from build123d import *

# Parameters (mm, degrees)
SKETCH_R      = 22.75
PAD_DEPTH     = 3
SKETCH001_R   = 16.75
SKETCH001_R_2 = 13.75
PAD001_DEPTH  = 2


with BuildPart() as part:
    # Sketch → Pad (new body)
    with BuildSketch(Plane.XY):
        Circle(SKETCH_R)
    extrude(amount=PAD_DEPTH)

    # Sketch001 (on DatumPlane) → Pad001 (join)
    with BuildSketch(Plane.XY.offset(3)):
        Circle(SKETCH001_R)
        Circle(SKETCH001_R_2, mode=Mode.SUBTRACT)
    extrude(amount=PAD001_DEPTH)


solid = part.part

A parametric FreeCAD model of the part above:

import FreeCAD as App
import Part
import Sketcher

V = App.Vector
Q = App.Units.Quantity

doc = App.newDocument("Part")
body = doc.addObject("PartDesign::Body", "Body")

# Sketch on XY plane
sketch1 = body.newObject("Sketcher::SketchObject", "Sketch")
sketch1.AttachmentSupport = (doc.getObject("XY_Plane"), [""])
sketch1.MapMode = "FlatFace"
sketch1.addGeometry(Part.Circle(V(0, 0, 0), V(0, 0, 1), 23), False)
sketch1.addConstraint([
    Sketcher.Constraint("Coincident", 0, 3, -1, 1),
    Sketcher.Constraint("Diameter", 0, Q("45.5 mm")),
])
pad1 = body.newObject("PartDesign::Pad", "Pad")
pad1.Profile = sketch1
pad1.Length = 3

# Sketch on XY plane
sketch2 = body.newObject("Sketcher::SketchObject", "Sketch001")
sketch2.AttachmentSupport = (doc.getObject("XY_Plane"), [""])
sketch2.MapMode = "FlatFace"
sketch2.AttachmentOffset = App.Placement(V(0, 0, 3), App.Rotation())
sketch2.addGeometry([
    Part.Circle(V(0, 0, 0), V(0, 0, 1), 17),
    Part.Circle(V(0, 0, 0), V(0, 0, 1), 14),
], False)
sketch2.addConstraint([
    Sketcher.Constraint("Coincident", 0, 3, -1, 1),
    Sketcher.Constraint("Coincident", 1, 3, -1, 1),
    Sketcher.Constraint("Diameter", 0, Q("33.5 mm")),
    Sketcher.Constraint("Diameter", 1, Q("27.5 mm")),
])
pad2 = body.newObject("PartDesign::Pad", "Pad001")
pad2.Profile = sketch2
pad2.Length = 2

doc.recompute()
